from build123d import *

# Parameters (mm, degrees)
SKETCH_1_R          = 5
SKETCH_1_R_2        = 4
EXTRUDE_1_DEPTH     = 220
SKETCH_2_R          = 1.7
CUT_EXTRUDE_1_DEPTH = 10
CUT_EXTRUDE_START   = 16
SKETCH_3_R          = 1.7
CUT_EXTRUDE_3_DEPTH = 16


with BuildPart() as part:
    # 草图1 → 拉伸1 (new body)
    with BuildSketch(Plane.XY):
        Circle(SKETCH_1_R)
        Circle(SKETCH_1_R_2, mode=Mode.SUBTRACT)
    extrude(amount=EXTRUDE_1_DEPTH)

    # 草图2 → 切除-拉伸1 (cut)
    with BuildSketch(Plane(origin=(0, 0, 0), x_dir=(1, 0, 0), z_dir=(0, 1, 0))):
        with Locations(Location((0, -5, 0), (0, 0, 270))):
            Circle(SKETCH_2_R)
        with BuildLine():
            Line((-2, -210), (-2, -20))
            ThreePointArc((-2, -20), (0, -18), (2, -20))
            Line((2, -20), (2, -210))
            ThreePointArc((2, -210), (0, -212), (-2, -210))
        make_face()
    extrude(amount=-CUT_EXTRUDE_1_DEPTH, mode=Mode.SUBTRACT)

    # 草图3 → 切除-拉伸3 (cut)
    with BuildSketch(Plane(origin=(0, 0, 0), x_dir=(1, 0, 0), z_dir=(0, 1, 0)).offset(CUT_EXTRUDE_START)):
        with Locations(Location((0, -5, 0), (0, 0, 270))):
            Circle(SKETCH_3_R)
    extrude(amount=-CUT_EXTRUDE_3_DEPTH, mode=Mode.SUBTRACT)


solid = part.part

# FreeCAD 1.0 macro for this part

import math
import FreeCAD as App
import Part
import Sketcher

doc = App.newDocument("Part")
body = doc.addObject("PartDesign::Body", "Body")

# Sketch on XY plane
sketch1 = doc.addObject("Sketcher::SketchObject", "Sketch")
body.addObject(sketch1)
sketch1.AttachmentSupport = (doc.XY_Plane, [""])
sketch1.MapMode = "FlatFace"
sketch1.addGeometry(Part.Circle(App.Vector(0, 0, 0), App.Vector(0, 0, 1), 5), False)
sketch1.addGeometry(Part.Circle(App.Vector(0, 0, 0), App.Vector(0, 0, 1), 4), False)
sketch1.addConstraint(Sketcher.Constraint("Coincident", 0, 3, -1, 1))
sketch1.addConstraint(Sketcher.Constraint("Coincident", 1, 3, -1, 1))
sketch1.addConstraint(Sketcher.Constraint("Diameter", 0, 10.0))
sketch1.addConstraint(Sketcher.Constraint("Diameter", 1, 8.0))
pad1 = doc.addObject("PartDesign::Pad", "Pad")
body.addObject(pad1)
pad1.Profile = sketch1
pad1.Length = 220

# Sketch on XZ plane
sketch2 = doc.addObject("Sketcher::SketchObject", "Sketch001")
body.addObject(sketch2)
sketch2.AttachmentSupport = (doc.XZ_Plane, [""])
sketch2.MapMode = "FlatFace"
sketch2.addGeometry(Part.Circle(App.Vector(0, 5, 0), App.Vector(0, 0, 1), 1.7), False)
sketch2.addGeometry(Part.LineSegment(App.Vector(-2, 20, 0), App.Vector(-2, 210, 0)), False)
sketch2.addGeometry(Part.ArcOfCircle(Part.Circle(App.Vector(0, 210, 0), App.Vector(0, 0, 1), 2), math.radians(0), math.radians(180)), False)
sketch2.addGeometry(Part.LineSegment(App.Vector(2, 210, 0), App.Vector(2, 20, 0)), False)
sketch2.addGeometry(Part.ArcOfCircle(Part.Circle(App.Vector(0, 20, 0), App.Vector(0, 0, 1), 2), math.radians(180), math.radians(360)), False)
sketch2.addConstraint(Sketcher.Constraint("Tangent", 1, 2, 2, 2))
sketch2.addConstraint(Sketcher.Constraint("Tangent", 2, 1, 3, 1))
sketch2.addConstraint(Sketcher.Constraint("Tangent", 3, 2, 4, 2))
sketch2.addConstraint(Sketcher.Constraint("Tangent", 4, 1, 1, 1))
sketch2.addConstraint(Sketcher.Constraint("Vertical", 1))
sketch2.addConstraint(Sketcher.Constraint("Vertical", 3))
sketch2.addConstraint(Sketcher.Constraint("PointOnObject", 0, 3, -2))
sketch2.addConstraint(Sketcher.Constraint("PointOnObject", 2, 3, -2))
sketch2.addConstraint(Sketcher.Constraint("Radius", 2, 2.0))
sketch2.addConstraint(Sketcher.Constraint("Diameter", 0, 3.4))
sketch2.addConstraint(Sketcher.Constraint("DistanceY", 1, 1, 1, 2, 190.0))
sketch2.addConstraint(Sketcher.Constraint("DistanceY", -1, 1, 0, 3, 5.0))
sketch2.addConstraint(Sketcher.Constraint("DistanceY", -1, 1, 2, 3, 210.0))
pocket1 = doc.addObject("PartDesign::Pocket", "Pocket")
body.addObject(pocket1)
pocket1.Profile = sketch2
pocket1.Length = 10
pocket1.Reversed = True

# Sketch on XZ plane
sketch3 = doc.addObject("Sketcher::SketchObject", "Sketch002")
body.addObject(sketch3)
sketch3.AttachmentSupport = (doc.XZ_Plane, [""])
sketch3.MapMode = "FlatFace"
sketch3.AttachmentOffset = App.Placement(App.Vector(0, 0, -16), App.Rotation())
sketch3.addGeometry(Part.Circle(App.Vector(0, 5, 0), App.Vector(0, 0, 1), 1.7), False)
sketch3.addConstraint(Sketcher.Constraint("PointOnObject", 0, 3, -2))
sketch3.addConstraint(Sketcher.Constraint("Diameter", 0, 3.4))
sketch3.addConstraint(Sketcher.Constraint("DistanceY", -1, 1, 0, 3, 5.0))
pocket2 = doc.addObject("PartDesign::Pocket", "Pocket001")
body.addObject(pocket2)
pocket2.Profile = sketch3
pocket2.Length = 16
pocket2.Reversed = True

doc.recompute()
